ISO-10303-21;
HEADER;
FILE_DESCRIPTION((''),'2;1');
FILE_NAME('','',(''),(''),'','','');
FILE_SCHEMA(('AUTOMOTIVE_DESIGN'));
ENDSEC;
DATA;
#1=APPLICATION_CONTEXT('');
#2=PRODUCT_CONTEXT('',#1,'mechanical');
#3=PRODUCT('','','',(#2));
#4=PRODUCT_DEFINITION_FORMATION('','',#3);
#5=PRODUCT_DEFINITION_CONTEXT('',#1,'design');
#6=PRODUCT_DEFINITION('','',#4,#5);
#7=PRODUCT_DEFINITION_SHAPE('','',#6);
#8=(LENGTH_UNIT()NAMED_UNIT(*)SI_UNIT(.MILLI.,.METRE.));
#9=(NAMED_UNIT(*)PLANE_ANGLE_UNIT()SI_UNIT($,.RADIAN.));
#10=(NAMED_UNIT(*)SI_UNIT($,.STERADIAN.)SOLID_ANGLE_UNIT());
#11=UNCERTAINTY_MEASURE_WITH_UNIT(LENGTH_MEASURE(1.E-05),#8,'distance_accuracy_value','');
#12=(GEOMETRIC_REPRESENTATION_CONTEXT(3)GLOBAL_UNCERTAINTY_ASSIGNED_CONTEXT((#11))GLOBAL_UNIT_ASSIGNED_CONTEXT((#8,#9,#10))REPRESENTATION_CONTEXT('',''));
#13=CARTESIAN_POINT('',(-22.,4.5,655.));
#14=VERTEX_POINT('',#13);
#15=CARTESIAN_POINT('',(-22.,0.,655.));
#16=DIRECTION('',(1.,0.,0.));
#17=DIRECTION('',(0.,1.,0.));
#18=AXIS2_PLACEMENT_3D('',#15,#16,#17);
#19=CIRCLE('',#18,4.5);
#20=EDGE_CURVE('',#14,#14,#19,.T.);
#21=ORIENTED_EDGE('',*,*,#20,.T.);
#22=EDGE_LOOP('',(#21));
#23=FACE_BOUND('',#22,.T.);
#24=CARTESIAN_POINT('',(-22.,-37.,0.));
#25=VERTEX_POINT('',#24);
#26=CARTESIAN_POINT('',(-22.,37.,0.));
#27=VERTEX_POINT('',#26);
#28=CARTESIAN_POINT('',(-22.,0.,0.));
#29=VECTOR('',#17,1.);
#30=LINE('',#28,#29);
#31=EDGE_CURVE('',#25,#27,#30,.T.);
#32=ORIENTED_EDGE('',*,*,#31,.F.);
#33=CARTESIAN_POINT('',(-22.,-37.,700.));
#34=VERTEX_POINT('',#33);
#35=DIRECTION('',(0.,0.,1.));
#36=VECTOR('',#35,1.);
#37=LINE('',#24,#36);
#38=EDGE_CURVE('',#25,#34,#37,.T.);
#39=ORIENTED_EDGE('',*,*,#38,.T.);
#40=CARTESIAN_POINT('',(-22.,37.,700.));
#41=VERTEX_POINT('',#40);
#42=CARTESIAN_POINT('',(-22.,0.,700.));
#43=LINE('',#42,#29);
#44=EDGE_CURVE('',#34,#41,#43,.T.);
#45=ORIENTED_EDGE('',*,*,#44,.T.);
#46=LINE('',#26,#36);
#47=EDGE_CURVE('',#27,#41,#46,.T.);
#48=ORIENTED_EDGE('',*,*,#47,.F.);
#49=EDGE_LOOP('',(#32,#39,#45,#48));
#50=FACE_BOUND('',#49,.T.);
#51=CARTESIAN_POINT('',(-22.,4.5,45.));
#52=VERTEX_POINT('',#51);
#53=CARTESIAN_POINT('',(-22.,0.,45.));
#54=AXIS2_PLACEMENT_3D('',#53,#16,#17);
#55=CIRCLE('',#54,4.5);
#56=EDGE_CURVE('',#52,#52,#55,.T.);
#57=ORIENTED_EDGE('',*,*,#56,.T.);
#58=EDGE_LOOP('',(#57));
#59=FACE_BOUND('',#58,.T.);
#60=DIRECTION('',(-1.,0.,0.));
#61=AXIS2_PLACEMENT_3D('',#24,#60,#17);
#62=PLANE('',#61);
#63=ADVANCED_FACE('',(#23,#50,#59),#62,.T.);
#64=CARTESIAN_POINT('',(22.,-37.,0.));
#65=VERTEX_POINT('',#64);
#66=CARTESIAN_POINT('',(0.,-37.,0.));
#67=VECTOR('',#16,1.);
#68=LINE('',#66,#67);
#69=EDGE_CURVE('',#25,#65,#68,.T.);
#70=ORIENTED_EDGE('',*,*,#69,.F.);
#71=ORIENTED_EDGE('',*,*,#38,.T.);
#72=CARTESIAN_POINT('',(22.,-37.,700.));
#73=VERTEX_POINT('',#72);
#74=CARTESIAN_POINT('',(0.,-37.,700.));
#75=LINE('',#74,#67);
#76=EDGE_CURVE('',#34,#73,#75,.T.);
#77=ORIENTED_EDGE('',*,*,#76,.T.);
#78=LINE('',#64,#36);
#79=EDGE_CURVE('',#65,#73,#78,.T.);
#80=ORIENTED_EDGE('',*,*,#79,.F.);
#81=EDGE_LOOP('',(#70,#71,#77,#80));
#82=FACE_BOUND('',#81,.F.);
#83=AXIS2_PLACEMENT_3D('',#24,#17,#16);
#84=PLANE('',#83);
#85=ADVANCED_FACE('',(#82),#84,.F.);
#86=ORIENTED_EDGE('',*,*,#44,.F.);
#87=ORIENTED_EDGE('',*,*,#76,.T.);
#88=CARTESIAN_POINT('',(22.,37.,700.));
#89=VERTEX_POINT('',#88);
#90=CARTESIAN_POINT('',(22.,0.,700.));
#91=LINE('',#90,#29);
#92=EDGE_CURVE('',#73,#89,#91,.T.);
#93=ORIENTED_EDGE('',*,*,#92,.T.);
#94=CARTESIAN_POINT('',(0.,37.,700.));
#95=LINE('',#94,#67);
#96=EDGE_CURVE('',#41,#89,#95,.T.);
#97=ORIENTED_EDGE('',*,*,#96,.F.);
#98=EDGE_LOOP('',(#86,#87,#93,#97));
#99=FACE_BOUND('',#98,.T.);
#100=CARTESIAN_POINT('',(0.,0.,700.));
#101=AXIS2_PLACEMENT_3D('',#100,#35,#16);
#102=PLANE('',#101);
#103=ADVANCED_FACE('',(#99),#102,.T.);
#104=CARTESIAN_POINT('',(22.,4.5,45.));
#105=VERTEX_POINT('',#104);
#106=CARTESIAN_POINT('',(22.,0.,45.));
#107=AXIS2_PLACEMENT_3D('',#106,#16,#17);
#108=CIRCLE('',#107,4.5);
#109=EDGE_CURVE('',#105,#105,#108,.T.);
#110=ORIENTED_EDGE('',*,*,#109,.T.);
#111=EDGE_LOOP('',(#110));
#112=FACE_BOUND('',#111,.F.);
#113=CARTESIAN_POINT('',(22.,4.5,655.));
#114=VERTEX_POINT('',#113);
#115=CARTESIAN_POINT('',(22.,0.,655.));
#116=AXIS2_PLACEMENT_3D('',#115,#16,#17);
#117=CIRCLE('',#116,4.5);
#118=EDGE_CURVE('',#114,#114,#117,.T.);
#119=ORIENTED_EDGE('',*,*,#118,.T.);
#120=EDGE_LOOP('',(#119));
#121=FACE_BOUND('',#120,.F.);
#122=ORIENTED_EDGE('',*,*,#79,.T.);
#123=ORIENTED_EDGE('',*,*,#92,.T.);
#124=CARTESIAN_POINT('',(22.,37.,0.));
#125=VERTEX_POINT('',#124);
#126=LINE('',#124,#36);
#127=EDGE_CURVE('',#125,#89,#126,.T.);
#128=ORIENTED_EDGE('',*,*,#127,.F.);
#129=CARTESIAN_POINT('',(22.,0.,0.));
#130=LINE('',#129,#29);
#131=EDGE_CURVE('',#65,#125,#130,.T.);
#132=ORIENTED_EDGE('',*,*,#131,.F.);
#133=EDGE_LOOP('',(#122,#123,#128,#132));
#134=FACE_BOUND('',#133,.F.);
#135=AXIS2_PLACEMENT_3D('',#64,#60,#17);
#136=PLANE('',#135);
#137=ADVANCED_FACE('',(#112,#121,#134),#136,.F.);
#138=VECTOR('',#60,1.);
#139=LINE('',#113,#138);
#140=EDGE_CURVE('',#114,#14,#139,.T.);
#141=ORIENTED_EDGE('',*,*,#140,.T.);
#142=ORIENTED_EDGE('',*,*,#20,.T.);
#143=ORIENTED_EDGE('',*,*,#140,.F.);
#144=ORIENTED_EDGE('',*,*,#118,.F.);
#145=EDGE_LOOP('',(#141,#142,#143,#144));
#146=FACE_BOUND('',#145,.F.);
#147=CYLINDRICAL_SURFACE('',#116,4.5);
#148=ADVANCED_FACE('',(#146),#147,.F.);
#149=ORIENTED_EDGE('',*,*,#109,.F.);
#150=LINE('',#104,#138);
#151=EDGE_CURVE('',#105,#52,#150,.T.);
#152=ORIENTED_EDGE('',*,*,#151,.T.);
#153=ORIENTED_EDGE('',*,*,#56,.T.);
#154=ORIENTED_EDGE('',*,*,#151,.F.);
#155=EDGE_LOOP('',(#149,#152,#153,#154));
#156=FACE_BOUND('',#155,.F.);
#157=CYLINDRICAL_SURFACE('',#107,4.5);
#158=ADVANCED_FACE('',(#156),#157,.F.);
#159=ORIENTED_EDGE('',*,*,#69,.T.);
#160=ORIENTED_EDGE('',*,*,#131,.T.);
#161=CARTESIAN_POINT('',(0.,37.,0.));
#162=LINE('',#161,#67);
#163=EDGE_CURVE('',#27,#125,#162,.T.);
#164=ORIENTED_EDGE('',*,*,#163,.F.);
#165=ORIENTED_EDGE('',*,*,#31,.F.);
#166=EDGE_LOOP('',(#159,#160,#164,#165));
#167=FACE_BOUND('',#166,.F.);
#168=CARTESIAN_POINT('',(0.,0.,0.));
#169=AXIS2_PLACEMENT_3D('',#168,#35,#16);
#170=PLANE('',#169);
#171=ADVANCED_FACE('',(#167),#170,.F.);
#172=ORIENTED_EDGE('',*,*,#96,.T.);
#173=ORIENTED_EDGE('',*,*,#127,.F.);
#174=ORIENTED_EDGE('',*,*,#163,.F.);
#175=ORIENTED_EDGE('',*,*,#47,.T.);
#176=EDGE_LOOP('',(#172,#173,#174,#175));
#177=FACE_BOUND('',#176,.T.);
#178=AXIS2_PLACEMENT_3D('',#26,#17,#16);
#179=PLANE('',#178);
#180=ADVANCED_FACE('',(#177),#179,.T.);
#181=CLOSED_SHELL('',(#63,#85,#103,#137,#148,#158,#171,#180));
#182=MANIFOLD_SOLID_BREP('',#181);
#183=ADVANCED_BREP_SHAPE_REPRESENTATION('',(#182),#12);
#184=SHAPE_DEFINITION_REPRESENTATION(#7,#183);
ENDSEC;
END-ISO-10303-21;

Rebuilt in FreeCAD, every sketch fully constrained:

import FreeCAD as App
import Part
import Sketcher
Q = App.Units.Quantity

doc = App.newDocument("Part")
params = doc.addObject("Spreadsheet::Sheet", "Params")
for row, (alias, value) in enumerate([
    ("sketch1_width", "44 mm"),
    ("sketch1_height", "74 mm"),
    ("pad1_length", "700 mm"),
    ("sketch2_diameter", "9 mm"),
], start=1):
    params.set(f"A{row}", alias)
    params.set(f"B{row}", "=" + value)
    params.setAlias(f"B{row}", alias)

body = doc.addObject("PartDesign::Body", "Body")

# Sketch on XY plane
sketch1 = body.newObject("Sketcher::SketchObject", "Sketch")
sketch1.AttachmentSupport = (doc.getObject("XY_Plane"), [""])
sketch1.MapMode = "FlatFace"
sketch1.addGeometry([
    Part.LineSegment(App.Vector(-22, 37, 0), App.Vector(-22, -37, 0)),
    Part.LineSegment(App.Vector(-22, -37, 0), App.Vector(22, -37, 0)),
    Part.LineSegment(App.Vector(22, -37, 0), App.Vector(22, 37, 0)),
    Part.LineSegment(App.Vector(22, 37, 0), App.Vector(-22, 37, 0)),
], False)
sketch1.addConstraint([
    Sketcher.Constraint("Coincident", 0, 2, 1, 1),
    Sketcher.Constraint("Coincident", 1, 2, 2, 1),
    Sketcher.Constraint("Coincident", 2, 2, 3, 1),
    Sketcher.Constraint("Coincident", 3, 2, 0, 1),
    Sketcher.Constraint("Vertical", 0),
    Sketcher.Constraint("Horizontal", 1),
    Sketcher.Constraint("Vertical", 2),
    Sketcher.Constraint("Horizontal", 3),
    Sketcher.Constraint("Symmetric", 0, 2, 2, 2, -1, 1),
    Sketcher.Constraint("DistanceX", 1, 1, 1, 2, Q("44 mm")),
    Sketcher.Constraint("DistanceY", 0, 2, 0, 1, Q("74 mm")),
])
sketch1.setExpression("Constraints[9]", "Params.sketch1_width")
sketch1.setExpression("Constraints[10]", "Params.sketch1_height")
pad1 = body.newObject("PartDesign::Pad", "Pad")
pad1.Profile = sketch1
pad1.setExpression("Length", "Params.pad1_length")

# Sketch on YZ plane
sketch2 = body.newObject("Sketcher::SketchObject", "Sketch001")
sketch2.AttachmentSupport = (doc.getObject("YZ_Plane"), [""])
sketch2.MapMode = "FlatFace"
sketch2.AttachmentOffset = App.Placement(App.Vector(0, 0, 22), App.Rotation())
sketch2.addGeometry([
    Part.Circle(App.Vector(0, 655, 0), App.Vector(0, 0, 1), 4.5),
    Part.Circle(App.Vector(0, 45, 0), App.Vector(0, 0, 1), 4.5),
], False)
sketch2.addConstraint([
    Sketcher.Constraint("Equal", 0, 1),
    Sketcher.Constraint("PointOnObject", 0, 3, -2),
    Sketcher.Constraint("PointOnObject", 1, 3, -2),
    Sketcher.Constraint("Diameter", 0, Q("9 mm")),
    Sketcher.Constraint("DistanceY", -1, 1, 0, 3, Q("655 mm")),
    Sketcher.Constraint("DistanceY", -1, 1, 1, 3, Q("45 mm")),
])
sketch2.setExpression("Constraints[3]", "Params.sketch2_diameter")
pocket1 = body.newObject("PartDesign::Pocket", "Pocket")
pocket1.Profile = sketch2
pocket1.Type = "ThroughAll"

doc.recompute()
